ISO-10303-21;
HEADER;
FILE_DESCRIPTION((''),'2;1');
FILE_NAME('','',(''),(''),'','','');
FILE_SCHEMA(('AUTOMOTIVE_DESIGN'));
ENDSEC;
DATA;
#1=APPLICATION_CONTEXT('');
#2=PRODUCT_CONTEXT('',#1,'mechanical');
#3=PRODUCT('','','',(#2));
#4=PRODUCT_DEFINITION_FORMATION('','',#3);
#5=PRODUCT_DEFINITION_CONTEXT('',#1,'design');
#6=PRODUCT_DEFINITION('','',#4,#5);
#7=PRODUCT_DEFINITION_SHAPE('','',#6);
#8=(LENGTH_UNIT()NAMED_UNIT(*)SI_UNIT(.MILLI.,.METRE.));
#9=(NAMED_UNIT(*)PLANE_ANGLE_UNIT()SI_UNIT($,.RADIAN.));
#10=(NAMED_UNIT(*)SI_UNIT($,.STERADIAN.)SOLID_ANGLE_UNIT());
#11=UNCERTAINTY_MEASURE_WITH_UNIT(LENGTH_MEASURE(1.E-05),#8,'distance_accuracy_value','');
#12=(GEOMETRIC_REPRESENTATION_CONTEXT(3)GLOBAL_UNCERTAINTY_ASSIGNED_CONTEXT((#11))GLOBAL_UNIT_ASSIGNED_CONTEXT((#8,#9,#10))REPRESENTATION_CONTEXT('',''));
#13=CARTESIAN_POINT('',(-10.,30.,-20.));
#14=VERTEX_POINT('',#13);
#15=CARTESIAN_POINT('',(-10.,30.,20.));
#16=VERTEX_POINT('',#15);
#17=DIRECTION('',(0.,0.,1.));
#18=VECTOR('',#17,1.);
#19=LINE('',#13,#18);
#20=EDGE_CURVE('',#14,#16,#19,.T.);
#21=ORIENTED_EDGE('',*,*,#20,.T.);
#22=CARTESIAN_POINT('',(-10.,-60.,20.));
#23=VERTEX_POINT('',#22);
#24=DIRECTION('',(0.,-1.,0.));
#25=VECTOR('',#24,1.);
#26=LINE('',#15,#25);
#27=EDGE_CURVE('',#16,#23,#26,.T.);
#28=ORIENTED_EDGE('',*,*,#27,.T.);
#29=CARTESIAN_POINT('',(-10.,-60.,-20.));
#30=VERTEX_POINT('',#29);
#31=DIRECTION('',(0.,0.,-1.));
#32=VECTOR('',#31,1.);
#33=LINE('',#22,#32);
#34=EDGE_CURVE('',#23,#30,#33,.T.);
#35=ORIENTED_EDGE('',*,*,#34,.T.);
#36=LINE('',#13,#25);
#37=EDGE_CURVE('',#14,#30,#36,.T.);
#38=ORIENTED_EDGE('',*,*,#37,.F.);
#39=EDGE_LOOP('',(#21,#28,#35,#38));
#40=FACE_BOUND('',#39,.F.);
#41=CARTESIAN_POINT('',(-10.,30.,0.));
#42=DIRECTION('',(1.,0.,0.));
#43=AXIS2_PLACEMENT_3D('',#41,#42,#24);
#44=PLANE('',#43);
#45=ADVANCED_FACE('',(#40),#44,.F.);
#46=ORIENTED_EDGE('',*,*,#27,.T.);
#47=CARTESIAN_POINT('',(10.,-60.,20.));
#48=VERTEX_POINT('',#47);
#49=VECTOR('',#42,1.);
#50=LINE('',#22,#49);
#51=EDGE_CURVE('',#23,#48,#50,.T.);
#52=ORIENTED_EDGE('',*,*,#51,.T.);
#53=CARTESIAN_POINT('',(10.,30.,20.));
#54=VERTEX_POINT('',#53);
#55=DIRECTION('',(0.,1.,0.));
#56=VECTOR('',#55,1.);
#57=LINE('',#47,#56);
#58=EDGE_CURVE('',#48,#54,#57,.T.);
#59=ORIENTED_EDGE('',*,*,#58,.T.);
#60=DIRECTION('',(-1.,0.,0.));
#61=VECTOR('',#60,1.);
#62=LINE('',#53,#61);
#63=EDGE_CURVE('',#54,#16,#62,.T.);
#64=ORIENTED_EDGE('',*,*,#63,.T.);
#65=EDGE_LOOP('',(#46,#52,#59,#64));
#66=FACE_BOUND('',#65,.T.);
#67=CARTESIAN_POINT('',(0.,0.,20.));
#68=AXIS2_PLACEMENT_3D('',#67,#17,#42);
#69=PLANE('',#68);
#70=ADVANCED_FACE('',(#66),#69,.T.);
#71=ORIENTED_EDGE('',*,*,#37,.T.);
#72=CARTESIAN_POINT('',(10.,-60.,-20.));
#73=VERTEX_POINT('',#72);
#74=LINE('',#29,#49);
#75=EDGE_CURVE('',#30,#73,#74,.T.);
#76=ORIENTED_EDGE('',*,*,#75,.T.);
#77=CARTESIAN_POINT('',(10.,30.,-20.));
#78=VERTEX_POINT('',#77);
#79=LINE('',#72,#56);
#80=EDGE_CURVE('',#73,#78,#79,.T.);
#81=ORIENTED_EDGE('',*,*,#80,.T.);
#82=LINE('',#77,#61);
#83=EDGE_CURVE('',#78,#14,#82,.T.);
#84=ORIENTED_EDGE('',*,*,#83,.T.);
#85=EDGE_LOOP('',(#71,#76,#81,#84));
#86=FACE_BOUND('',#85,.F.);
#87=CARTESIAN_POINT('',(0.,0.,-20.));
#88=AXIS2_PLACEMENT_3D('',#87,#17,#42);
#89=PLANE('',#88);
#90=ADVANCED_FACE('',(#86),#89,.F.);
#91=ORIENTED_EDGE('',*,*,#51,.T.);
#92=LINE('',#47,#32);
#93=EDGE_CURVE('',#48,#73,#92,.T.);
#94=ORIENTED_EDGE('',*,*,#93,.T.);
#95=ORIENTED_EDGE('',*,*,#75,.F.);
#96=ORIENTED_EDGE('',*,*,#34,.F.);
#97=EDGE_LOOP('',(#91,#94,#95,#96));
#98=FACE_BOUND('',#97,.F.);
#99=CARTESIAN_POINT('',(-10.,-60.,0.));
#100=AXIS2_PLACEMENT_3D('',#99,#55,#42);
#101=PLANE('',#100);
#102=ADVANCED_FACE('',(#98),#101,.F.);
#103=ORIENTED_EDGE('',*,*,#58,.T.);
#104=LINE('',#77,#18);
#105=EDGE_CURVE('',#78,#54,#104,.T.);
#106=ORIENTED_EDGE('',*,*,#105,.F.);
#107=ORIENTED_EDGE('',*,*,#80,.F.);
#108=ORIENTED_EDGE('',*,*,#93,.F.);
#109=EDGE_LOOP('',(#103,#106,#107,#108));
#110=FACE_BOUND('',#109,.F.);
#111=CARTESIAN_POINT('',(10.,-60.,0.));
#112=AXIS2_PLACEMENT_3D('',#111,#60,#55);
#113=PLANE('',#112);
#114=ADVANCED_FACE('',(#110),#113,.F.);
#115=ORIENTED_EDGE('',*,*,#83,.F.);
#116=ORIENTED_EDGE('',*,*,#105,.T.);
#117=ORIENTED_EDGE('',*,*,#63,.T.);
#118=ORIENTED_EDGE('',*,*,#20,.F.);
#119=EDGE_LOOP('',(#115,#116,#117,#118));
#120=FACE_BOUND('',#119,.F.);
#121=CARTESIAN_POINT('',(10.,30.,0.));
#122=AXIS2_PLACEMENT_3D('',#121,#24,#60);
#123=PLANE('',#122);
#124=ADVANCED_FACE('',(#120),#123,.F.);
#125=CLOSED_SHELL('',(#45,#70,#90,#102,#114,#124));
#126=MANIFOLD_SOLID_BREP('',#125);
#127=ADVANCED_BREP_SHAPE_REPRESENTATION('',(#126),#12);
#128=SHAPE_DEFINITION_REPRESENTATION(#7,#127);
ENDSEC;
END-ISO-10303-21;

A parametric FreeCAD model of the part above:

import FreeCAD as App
import Part
import Sketcher
from FreeCAD import Vector
Q = App.Units.Quantity

doc = App.newDocument("Part")
body = doc.addObject("PartDesign::Body", "Body")

sketch1 = body.newObject("Sketcher::SketchObject", "Sketch")
sketch1.AttachmentSupport = (doc.getObject("XY_Plane"), [""])
sketch1.MapMode = "FlatFace"
sketch1.addGeometry([
    Part.LineSegment(Vector(10, -60, 0), Vector(10, 30, 0)),
    Part.LineSegment(Vector(10, 30, 0), Vector(-10, 30, 0)),
    Part.LineSegment(Vector(-10, 30, 0), Vector(-10, -60, 0)),
    Part.LineSegment(Vector(-10, -60, 0), Vector(10, -60, 0)),
], False)
sketch1.addConstraint([
    Sketcher.Constraint("Coincident", 0, 2, 1, 1),
    Sketcher.Constraint("Coincident", 1, 2, 2, 1),
    Sketcher.Constraint("Coincident", 2, 2, 3, 1),
    Sketcher.Constraint("Coincident", 3, 2, 0, 1),
    Sketcher.Constraint("Vertical", 0),
    Sketcher.Constraint("Horizontal", 1),
    Sketcher.Constraint("Vertical", 2),
    Sketcher.Constraint("Horizontal", 3),
    Sketcher.Constraint("DistanceX", 1, 2, 1, 1, Q("20 mm")),
    Sketcher.Constraint("DistanceY", 0, 1, 0, 2, Q("90 mm")),
    Sketcher.Constraint("DistanceX", -1, 1, 0, 2, Q("10 mm")),
    Sketcher.Constraint("DistanceY", -1, 1, 0, 2, Q("30 mm")),
])
pad1 = body.newObject("PartDesign::Pad", "Pad")
pad1.Profile = sketch1
pad1.Length = 40
pad1.Midplane = True

doc.recompute()
